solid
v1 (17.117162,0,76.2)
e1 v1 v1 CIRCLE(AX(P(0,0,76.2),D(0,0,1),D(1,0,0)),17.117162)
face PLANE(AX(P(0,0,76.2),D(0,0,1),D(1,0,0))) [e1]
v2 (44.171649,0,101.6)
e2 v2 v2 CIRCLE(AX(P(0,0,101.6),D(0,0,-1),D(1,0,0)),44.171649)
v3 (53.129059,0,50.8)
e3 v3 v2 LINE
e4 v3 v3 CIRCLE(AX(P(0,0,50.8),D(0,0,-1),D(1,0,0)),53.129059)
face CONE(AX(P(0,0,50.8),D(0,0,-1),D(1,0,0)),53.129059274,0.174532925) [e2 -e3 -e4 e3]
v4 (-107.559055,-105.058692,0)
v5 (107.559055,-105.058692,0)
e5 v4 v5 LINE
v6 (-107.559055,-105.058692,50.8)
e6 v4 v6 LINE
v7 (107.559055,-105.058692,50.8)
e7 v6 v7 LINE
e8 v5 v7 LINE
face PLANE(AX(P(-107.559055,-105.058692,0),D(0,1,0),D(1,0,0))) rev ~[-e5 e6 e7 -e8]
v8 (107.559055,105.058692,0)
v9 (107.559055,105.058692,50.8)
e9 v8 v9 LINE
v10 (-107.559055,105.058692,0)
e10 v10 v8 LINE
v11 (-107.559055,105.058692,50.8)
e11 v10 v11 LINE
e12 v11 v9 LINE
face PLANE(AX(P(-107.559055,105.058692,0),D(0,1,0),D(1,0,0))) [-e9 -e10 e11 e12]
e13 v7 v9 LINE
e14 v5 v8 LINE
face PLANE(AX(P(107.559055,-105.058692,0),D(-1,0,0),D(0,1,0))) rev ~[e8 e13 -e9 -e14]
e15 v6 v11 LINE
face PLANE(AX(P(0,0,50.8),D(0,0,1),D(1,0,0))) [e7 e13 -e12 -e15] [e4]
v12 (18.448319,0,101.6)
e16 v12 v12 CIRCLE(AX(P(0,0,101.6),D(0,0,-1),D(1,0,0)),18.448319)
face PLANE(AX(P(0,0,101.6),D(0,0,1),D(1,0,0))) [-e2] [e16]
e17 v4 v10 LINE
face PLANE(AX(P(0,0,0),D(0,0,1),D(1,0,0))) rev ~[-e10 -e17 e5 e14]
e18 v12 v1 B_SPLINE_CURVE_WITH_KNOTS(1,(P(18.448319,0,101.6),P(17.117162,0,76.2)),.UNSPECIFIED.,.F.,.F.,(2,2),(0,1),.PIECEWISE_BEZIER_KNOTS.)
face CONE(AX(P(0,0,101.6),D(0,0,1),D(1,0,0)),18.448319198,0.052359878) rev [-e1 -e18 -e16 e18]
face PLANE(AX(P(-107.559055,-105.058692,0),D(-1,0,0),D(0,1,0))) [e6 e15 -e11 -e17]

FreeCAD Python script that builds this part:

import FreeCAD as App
import Part
import Sketcher
from FreeCAD import Vector
Q = App.Units.Quantity

doc = App.newDocument("Part")
body = doc.addObject("PartDesign::Body", "Body")

sketch1 = doc.addObject("Sketcher::SketchObject", "Sketch")
body.addObject(sketch1)
sketch1.AttachmentSupport = (doc.XY_Plane, [""])
sketch1.MapMode = "FlatFace"
sketch1.addGeometry([
    Part.LineSegment(Vector(-108, 105, 0), Vector(-108, -105, 0)),
    Part.LineSegment(Vector(-108, -105, 0), Vector(108, -105, 0)),
    Part.LineSegment(Vector(108, -105, 0), Vector(108, 105, 0)),
    Part.LineSegment(Vector(108, 105, 0), Vector(-108, 105, 0)),
], False)
sketch1.addConstraint([
    Sketcher.Constraint("Coincident", 0, 2, 1, 1),
    Sketcher.Constraint("Coincident", 1, 2, 2, 1),
    Sketcher.Constraint("Coincident", 2, 2, 3, 1),
    Sketcher.Constraint("Coincident", 3, 2, 0, 1),
    Sketcher.Constraint("Vertical", 0),
    Sketcher.Constraint("Horizontal", 1),
    Sketcher.Constraint("Vertical", 2),
    Sketcher.Constraint("Horizontal", 3),
    Sketcher.Constraint("Symmetric", 0, 2, 2, 2, -1, 1),
    Sketcher.Constraint("DistanceX", 1, 1, 1, 2, Q("215.11811 mm")),
    Sketcher.Constraint("DistanceY", 0, 2, 0, 1, Q("210.117385 mm")),
])
pad1 = doc.addObject("PartDesign::Pad", "Pad")
body.addObject(pad1)
pad1.Profile = sketch1
pad1.Length = Q("2 in")

sketch2 = doc.addObject("Sketcher::SketchObject", "Sketch001")
body.addObject(sketch2)
sketch2.AttachmentSupport = (doc.XY_Plane, [""])
sketch2.MapMode = "FlatFace"
sketch2.AttachmentOffset = App.Placement(Vector(0, 0, 2 * 25.4), App.Rotation())
sketch2.addGeometry(Part.Circle(Vector(0, 0, 0), Vector(0, 0, 1), 53), False)
sketch2.addConstraint([
    Sketcher.Constraint("Coincident", 0, 3, -1, 1),
    Sketcher.Constraint("Diameter", 0, Q("106.258119 mm")),
])
pad2 = doc.addObject("PartDesign::Pad", "Pad001")
body.addObject(pad2)
pad2.Profile = sketch2
pad2.Length = Q("2 in")
pad2.TaperAngle = -10

sketch3 = doc.addObject("Sketcher::SketchObject", "Sketch002")
body.addObject(sketch3)
sketch3.AttachmentSupport = (doc.XY_Plane, [""])
sketch3.MapMode = "FlatFace"
sketch3.AttachmentOffset = App.Placement(Vector(0, 0, 4 * 25.4), App.Rotation())
sketch3.addGeometry(Part.Circle(Vector(0, 0, 0), Vector(0, 0, 1), 18), False)
sketch3.addConstraint([
    Sketcher.Constraint("Coincident", 0, 3, -1, 1),
    Sketcher.Constraint("Diameter", 0, Q("36.896638 mm")),
])
pocket1 = doc.addObject("PartDesign::Pocket", "Pocket")
body.addObject(pocket1)
pocket1.Profile = sketch3
pocket1.Length = Q("1 in")
pocket1.TaperAngle = -3

doc.recompute()
